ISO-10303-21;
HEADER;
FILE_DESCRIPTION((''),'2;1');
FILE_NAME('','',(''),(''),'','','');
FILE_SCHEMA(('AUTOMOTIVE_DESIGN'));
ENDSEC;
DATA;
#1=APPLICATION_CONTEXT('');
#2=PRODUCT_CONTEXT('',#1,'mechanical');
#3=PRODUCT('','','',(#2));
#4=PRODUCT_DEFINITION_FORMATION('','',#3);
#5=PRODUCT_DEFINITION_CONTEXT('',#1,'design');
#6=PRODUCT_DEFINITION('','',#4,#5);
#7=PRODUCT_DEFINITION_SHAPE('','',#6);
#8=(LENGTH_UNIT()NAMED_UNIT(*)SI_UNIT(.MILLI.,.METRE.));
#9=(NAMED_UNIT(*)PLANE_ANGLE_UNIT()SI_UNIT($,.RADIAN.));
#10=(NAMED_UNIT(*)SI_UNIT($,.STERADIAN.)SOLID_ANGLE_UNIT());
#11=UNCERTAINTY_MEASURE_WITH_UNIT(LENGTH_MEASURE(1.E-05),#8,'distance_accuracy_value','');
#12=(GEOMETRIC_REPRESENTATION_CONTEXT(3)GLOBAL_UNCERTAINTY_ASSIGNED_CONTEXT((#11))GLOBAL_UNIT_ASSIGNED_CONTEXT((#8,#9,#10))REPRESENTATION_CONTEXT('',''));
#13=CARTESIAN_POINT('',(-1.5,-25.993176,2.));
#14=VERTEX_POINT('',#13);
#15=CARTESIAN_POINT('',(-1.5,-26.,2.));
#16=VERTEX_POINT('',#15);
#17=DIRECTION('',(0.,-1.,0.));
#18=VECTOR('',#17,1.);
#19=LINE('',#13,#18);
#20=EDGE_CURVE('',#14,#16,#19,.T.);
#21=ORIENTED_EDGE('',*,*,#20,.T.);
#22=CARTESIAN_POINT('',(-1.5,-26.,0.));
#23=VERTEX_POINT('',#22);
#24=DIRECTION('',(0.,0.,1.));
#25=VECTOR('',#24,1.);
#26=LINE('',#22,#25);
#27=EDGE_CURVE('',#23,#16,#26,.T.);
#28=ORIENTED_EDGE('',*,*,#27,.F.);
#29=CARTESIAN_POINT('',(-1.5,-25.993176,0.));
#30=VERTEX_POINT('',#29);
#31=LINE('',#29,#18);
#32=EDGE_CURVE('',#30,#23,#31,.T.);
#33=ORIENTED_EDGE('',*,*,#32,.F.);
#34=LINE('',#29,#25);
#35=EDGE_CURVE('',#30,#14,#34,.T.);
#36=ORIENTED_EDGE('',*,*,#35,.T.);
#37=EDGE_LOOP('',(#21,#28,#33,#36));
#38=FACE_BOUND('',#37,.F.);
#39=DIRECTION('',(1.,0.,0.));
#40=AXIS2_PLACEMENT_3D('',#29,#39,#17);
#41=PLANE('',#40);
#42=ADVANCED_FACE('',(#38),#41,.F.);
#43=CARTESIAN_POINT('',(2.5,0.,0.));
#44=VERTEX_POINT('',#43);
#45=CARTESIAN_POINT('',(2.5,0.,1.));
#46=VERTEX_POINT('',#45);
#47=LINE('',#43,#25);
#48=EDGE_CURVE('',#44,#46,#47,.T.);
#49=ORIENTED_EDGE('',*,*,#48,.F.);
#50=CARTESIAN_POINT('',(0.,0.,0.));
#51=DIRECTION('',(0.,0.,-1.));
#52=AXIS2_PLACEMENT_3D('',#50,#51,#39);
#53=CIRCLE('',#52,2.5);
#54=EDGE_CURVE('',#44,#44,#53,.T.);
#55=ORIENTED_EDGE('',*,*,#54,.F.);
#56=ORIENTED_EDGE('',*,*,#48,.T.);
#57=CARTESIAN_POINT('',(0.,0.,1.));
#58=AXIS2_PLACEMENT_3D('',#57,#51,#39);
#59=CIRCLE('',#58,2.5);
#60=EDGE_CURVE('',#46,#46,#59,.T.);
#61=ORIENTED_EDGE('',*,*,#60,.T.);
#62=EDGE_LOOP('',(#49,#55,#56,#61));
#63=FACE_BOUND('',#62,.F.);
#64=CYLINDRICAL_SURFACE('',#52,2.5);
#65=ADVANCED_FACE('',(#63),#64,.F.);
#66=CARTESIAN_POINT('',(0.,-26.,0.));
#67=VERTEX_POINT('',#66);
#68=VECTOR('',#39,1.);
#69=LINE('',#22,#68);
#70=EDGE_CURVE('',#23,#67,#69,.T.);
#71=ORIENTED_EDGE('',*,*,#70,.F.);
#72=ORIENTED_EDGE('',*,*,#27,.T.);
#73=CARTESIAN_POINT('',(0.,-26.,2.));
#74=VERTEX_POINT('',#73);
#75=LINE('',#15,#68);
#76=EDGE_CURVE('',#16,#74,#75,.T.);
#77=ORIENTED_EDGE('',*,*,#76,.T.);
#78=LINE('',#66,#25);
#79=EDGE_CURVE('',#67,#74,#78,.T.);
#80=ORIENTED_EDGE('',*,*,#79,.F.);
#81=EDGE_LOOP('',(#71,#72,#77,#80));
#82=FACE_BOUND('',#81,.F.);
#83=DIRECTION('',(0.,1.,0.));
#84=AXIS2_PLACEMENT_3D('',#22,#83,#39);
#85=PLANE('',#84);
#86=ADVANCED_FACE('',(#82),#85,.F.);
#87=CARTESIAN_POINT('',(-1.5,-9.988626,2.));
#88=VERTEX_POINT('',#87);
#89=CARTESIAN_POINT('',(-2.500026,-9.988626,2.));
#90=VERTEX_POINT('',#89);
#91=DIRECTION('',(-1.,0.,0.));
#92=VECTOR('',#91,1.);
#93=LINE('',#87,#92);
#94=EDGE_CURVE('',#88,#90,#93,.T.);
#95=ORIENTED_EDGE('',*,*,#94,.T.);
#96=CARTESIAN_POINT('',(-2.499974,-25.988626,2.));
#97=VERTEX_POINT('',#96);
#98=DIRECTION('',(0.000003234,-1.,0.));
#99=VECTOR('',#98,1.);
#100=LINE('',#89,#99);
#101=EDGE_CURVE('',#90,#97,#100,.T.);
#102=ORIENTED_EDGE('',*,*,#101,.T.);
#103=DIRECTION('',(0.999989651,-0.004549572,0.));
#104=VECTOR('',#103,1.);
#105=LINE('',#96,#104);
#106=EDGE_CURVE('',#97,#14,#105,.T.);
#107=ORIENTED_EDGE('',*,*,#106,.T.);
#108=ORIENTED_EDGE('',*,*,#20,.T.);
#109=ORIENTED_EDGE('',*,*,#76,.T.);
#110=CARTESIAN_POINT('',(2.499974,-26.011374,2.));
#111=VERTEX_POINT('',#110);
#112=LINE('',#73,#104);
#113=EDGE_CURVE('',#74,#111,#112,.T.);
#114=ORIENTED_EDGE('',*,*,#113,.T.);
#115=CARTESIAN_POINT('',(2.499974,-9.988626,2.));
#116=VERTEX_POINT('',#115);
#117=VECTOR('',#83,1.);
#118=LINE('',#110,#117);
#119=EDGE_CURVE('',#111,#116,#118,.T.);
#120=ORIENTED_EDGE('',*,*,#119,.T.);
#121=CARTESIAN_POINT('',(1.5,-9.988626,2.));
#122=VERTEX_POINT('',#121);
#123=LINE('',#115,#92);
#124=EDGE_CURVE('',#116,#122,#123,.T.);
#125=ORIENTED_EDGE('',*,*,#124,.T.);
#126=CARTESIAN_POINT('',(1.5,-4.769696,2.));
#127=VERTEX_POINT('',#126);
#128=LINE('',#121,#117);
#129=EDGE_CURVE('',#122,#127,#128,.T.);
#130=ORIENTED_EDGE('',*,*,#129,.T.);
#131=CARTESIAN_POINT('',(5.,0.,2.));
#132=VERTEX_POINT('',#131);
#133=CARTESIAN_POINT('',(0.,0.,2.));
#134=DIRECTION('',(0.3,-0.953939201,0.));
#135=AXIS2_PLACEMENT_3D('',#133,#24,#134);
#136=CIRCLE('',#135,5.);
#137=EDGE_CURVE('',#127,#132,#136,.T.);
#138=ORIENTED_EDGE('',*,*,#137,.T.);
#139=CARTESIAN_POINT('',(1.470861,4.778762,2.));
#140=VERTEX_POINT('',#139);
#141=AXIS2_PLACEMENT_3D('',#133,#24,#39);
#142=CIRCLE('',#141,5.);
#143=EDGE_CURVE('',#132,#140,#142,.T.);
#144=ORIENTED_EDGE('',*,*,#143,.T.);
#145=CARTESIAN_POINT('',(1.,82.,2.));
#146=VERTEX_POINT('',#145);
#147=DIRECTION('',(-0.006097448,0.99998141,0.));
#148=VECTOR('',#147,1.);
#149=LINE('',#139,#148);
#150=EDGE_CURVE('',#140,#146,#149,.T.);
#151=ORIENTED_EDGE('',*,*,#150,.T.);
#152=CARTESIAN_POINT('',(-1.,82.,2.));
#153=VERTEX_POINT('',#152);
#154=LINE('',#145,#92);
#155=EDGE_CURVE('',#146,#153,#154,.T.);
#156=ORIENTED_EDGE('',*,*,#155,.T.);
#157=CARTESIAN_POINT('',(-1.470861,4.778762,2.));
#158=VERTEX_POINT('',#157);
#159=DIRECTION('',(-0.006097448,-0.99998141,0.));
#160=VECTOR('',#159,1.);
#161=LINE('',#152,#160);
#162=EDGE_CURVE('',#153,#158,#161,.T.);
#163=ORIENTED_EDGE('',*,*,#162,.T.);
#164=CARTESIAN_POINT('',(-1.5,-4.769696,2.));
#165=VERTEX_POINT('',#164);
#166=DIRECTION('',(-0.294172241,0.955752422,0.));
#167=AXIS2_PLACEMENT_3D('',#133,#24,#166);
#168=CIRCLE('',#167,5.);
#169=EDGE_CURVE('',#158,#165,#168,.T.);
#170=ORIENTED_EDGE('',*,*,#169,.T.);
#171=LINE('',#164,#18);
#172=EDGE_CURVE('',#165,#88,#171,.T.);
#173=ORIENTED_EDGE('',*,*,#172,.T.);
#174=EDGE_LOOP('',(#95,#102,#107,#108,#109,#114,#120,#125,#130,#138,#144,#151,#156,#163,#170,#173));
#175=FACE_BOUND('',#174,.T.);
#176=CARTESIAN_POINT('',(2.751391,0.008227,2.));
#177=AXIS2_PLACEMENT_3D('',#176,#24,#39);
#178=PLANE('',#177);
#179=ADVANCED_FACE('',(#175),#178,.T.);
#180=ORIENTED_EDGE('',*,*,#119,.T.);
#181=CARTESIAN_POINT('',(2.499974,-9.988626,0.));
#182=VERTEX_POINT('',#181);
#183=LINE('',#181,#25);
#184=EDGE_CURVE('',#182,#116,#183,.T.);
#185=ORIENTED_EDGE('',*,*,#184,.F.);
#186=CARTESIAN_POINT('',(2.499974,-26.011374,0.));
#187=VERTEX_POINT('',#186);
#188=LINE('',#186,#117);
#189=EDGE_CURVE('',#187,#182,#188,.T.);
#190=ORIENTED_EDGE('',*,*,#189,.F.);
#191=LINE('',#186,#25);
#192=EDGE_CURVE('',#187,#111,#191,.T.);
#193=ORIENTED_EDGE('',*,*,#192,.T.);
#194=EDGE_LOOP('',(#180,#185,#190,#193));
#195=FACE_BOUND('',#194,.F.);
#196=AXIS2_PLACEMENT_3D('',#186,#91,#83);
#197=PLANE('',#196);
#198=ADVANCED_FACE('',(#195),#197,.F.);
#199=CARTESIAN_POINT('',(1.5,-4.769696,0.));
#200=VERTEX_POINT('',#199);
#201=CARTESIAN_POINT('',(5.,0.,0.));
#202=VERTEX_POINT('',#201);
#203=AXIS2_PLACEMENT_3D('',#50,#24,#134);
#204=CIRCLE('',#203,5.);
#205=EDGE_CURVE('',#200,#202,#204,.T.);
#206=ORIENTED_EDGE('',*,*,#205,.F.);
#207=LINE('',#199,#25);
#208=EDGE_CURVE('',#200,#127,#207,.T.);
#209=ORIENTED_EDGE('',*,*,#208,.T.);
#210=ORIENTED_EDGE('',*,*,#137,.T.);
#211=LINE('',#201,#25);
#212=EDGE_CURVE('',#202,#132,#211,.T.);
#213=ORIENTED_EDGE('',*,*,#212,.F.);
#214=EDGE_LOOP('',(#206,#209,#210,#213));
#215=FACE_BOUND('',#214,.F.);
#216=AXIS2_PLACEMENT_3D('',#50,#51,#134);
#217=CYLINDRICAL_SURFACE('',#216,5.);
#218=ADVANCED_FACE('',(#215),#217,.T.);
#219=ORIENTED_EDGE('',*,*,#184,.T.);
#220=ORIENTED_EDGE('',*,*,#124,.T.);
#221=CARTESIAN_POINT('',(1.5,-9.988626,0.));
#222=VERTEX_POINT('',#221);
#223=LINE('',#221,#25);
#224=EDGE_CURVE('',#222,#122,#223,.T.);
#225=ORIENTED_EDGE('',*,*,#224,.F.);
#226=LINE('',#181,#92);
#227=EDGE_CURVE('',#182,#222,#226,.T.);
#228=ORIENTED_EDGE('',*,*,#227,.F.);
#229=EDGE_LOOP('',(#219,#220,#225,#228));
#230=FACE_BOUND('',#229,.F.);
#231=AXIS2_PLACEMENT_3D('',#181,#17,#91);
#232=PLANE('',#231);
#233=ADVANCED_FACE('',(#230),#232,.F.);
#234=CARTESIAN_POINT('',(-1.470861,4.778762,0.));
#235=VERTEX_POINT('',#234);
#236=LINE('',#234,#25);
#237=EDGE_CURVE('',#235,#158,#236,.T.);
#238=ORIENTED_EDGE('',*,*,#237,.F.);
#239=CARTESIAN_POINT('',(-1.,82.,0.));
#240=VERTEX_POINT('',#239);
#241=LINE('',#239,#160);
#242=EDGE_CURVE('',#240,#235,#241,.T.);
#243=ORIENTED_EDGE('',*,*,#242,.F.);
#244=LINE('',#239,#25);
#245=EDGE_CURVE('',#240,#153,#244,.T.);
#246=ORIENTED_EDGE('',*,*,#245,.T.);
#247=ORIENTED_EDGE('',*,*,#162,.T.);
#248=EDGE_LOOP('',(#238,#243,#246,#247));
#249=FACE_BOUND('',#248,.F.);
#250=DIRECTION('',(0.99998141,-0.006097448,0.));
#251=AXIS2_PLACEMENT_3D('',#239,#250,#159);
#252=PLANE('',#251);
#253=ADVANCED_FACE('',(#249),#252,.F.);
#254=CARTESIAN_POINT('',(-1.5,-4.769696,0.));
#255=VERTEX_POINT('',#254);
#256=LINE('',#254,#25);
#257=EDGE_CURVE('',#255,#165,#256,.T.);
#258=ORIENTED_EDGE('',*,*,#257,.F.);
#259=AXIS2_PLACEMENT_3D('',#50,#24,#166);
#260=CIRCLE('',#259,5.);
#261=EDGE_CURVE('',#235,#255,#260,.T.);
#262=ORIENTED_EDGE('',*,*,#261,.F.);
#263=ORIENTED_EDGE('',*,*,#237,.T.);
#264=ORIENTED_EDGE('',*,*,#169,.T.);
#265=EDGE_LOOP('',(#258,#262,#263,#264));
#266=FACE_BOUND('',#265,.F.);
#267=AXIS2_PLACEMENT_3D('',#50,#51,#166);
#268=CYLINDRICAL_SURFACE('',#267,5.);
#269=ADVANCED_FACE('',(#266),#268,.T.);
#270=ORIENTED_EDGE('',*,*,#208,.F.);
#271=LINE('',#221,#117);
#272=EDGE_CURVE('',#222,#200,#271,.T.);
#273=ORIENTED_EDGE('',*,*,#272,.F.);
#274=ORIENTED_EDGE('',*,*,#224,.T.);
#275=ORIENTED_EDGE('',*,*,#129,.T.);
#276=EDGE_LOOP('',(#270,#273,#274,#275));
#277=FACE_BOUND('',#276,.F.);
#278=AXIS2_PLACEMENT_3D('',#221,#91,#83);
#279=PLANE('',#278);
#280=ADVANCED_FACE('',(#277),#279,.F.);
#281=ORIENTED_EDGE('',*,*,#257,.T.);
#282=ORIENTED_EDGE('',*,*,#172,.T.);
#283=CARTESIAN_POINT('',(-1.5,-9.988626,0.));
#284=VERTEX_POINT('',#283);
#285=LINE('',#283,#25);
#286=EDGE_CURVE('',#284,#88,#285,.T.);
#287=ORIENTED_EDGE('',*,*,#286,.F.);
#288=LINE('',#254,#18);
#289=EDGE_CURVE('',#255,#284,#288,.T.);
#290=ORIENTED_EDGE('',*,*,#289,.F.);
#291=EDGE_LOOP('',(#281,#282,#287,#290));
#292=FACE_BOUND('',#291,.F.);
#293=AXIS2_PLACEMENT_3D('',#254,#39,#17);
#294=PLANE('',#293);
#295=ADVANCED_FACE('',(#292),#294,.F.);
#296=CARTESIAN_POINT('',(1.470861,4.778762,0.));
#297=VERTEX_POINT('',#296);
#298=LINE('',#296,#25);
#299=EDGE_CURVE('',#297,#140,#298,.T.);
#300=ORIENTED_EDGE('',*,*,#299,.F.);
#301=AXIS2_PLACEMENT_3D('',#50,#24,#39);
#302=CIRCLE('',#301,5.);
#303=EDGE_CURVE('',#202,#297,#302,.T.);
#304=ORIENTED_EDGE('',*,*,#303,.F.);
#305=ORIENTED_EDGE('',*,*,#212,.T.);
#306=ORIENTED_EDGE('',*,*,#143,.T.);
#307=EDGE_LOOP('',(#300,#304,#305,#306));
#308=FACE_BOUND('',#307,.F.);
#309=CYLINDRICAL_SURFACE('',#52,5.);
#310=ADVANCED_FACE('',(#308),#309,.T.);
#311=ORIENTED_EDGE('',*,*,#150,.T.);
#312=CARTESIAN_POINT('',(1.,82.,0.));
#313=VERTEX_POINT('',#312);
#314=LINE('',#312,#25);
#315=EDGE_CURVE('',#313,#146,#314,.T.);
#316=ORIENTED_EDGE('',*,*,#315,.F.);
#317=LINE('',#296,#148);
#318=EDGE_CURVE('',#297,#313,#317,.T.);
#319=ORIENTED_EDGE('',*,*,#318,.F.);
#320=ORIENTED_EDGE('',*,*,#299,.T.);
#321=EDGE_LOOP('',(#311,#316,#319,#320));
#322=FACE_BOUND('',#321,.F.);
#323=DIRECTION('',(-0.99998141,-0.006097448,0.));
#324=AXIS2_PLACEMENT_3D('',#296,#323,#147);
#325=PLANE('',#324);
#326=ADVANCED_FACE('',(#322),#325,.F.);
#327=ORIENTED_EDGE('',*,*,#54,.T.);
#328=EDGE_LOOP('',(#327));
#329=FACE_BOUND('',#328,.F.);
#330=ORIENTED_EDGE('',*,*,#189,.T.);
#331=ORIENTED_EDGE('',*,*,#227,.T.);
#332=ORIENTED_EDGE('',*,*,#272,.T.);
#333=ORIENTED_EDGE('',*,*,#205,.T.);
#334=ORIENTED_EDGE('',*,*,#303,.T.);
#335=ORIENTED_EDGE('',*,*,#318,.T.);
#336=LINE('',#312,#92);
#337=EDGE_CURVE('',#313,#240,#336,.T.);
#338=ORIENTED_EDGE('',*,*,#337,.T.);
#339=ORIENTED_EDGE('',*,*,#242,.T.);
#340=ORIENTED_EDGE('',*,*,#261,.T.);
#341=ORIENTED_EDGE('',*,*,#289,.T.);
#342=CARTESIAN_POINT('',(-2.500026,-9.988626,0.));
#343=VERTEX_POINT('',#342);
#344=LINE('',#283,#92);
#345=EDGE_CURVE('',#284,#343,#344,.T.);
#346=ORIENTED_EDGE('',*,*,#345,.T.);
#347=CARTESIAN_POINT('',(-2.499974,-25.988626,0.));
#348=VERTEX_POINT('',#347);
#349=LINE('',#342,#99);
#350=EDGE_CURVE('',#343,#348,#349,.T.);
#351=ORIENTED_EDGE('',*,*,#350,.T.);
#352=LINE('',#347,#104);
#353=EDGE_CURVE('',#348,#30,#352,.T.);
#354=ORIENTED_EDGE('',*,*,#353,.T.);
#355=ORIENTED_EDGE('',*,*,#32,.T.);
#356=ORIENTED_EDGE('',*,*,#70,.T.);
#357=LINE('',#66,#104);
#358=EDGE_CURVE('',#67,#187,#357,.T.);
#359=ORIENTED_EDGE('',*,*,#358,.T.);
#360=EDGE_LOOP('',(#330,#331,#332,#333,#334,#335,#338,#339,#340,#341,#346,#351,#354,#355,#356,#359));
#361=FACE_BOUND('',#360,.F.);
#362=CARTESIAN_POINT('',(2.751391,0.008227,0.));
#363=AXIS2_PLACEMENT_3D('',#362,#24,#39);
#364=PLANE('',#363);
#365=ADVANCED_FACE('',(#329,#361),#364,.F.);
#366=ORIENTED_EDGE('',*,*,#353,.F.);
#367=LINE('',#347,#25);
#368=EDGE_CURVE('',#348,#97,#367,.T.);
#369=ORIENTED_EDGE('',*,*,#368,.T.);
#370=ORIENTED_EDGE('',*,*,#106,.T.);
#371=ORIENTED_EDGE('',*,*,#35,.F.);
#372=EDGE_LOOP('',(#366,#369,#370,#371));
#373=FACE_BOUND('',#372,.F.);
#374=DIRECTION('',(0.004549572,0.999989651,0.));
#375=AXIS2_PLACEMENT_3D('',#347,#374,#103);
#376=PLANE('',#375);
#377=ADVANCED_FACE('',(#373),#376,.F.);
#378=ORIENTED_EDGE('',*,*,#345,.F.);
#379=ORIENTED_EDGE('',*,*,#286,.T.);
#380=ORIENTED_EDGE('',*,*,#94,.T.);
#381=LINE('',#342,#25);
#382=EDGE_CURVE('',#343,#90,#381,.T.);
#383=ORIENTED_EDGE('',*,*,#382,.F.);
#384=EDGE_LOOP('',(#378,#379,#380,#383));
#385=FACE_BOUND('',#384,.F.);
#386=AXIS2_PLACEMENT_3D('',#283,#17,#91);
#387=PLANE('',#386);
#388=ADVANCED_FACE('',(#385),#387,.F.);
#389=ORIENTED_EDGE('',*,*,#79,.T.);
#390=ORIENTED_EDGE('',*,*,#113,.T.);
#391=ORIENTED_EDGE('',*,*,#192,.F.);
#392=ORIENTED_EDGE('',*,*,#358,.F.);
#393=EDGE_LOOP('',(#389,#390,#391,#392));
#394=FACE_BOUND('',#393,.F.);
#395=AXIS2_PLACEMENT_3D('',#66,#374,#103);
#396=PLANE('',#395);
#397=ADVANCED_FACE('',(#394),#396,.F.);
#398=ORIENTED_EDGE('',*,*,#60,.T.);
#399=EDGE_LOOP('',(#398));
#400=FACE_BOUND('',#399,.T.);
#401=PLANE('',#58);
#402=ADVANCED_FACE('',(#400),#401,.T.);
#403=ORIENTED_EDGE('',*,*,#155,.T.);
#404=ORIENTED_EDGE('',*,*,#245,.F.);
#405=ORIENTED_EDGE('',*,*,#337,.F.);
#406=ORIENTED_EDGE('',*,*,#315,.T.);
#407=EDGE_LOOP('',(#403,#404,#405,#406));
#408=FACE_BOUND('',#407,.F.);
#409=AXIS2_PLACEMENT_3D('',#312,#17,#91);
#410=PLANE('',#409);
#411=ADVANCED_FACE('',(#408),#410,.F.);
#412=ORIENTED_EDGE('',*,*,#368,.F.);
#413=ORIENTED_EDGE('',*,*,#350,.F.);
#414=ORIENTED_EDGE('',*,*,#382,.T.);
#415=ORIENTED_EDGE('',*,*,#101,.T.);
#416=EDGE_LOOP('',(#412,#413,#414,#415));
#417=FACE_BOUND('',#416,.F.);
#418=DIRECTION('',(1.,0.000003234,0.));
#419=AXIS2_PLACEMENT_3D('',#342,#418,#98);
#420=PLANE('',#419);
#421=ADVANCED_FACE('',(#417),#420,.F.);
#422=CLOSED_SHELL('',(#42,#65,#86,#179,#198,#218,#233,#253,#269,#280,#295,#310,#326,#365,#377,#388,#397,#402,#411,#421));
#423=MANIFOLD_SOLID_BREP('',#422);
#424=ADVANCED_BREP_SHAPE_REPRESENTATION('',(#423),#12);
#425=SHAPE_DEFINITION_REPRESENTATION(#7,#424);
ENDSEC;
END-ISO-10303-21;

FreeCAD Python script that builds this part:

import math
import FreeCAD as App
import Part
import Sketcher

doc = App.newDocument("Part")
params = doc.addObject("Spreadsheet::Sheet", "Params")
for row, (alias, value) in enumerate([
    ("sketch1_radius", "5 mm"),
    ("sketch1_radius2", "5 mm"),
    ("sketch1_width", "2 mm"),
    ("sketch1_length", "16 mm"),
    ("sketch1_width2", "1.5 mm"),
    ("pad1_length", "2 mm"),
    ("sketch2_diameter", "5 mm"),
    ("pocket1_length", "1 mm"),
], start=1):
    params.set(f"A{row}", alias)
    params.set(f"B{row}", "=" + value)
    params.setAlias(f"B{row}", alias)

body = doc.addObject("PartDesign::Body", "Body")

# Sketch on XY plane
sketch1 = doc.addObject("Sketcher::SketchObject", "Sketch")
body.addObject(sketch1)
sketch1.AttachmentSupport = (doc.XY_Plane, [""])
sketch1.MapMode = "FlatFace"
sketch1.addGeometry(Part.ArcOfCircle(Part.Circle(App.Vector(0, 0, 0), App.Vector(0, 0, 1), 5), math.radians(-72.542397), math.radians(0)), False)
sketch1.addGeometry(Part.ArcOfCircle(Part.Circle(App.Vector(0, 0, 0), App.Vector(0, 0, 1), 5), math.radians(0), math.radians(72.892092)), False)
sketch1.addGeometry(Part.LineSegment(App.Vector(1.470861, 4.778762, 0), App.Vector(1, 82, 0)), False)
sketch1.addGeometry(Part.LineSegment(App.Vector(1, 82, 0), App.Vector(-1, 82, 0)), False)
sketch1.addGeometry(Part.LineSegment(App.Vector(-1, 82, 0), App.Vector(-1.470861, 4.778762, 0)), False)
sketch1.addGeometry(Part.ArcOfCircle(Part.Circle(App.Vector(0, 0, 0), App.Vector(0, 0, 1), 5), math.radians(107.107908), math.radians(252.542397)), False)
sketch1.addGeometry(Part.LineSegment(App.Vector(-1.5, -4.769696, 0), App.Vector(-1.5, -9.988626, 0)), False)
sketch1.addGeometry(Part.LineSegment(App.Vector(-1.5, -9.988626, 0), App.Vector(-2.500026, -9.988626, 0)), False)
sketch1.addGeometry(Part.LineSegment(App.Vector(-2.500026, -9.988626, 0), App.Vector(-2.499974, -25.988626, 0)), False)
sketch1.addGeometry(Part.LineSegment(App.Vector(-2.499974, -25.988626, 0), App.Vector(-1.5, -25.993176, 0)), False)
sketch1.addGeometry(Part.LineSegment(App.Vector(-1.5, -25.993176, 0), App.Vector(-1.5, -26, 0)), False)
sketch1.addGeometry(Part.LineSegment(App.Vector(-1.5, -26, 0), App.Vector(0, -26, 0)), False)
sketch1.addGeometry(Part.LineSegment(App.Vector(0, -26, 0), App.Vector(2.499974, -26.011374, 0)), False)
sketch1.addGeometry(Part.LineSegment(App.Vector(2.499974, -26.011374, 0), App.Vector(2.499974, -9.988626, 0)), False)
sketch1.addGeometry(Part.LineSegment(App.Vector(2.499974, -9.988626, 0), App.Vector(1.5, -9.988626, 0)), False)
sketch1.addGeometry(Part.LineSegment(App.Vector(1.5, -9.988626, 0), App.Vector(1.5, -4.769696, 0)), False)
sketch1.addConstraint(Sketcher.Constraint("Coincident", 0, 2, 1, 1))
sketch1.addConstraint(Sketcher.Constraint("Coincident", 1, 2, 2, 1))
sketch1.addConstraint(Sketcher.Constraint("Coincident", 2, 2, 3, 1))
sketch1.addConstraint(Sketcher.Constraint("Coincident", 3, 2, 4, 1))
sketch1.addConstraint(Sketcher.Constraint("Coincident", 4, 2, 5, 1))
sketch1.addConstraint(Sketcher.Constraint("Coincident", 5, 2, 6, 1))
sketch1.addConstraint(Sketcher.Constraint("Coincident", 6, 2, 7, 1))
sketch1.addConstraint(Sketcher.Constraint("Coincident", 7, 2, 8, 1))
sketch1.addConstraint(Sketcher.Constraint("Coincident", 8, 2, 9, 1))
sketch1.addConstraint(Sketcher.Constraint("Coincident", 9, 2, 10, 1))
sketch1.addConstraint(Sketcher.Constraint("Coincident", 10, 2, 11, 1))
sketch1.addConstraint(Sketcher.Constraint("Coincident", 11, 2, 12, 1))
sketch1.addConstraint(Sketcher.Constraint("Coincident", 12, 2, 13, 1))
sketch1.addConstraint(Sketcher.Constraint("Coincident", 13, 2, 14, 1))
sketch1.addConstraint(Sketcher.Constraint("Coincident", 14, 2, 15, 1))
sketch1.addConstraint(Sketcher.Constraint("Coincident", 15, 2, 0, 1))
sketch1.addConstraint(Sketcher.Constraint("Horizontal", 3))
sketch1.addConstraint(Sketcher.Constraint("Vertical", 6))
sketch1.addConstraint(Sketcher.Constraint("Horizontal", 7))
sketch1.addConstraint(Sketcher.Constraint("Vertical", 10))
sketch1.addConstraint(Sketcher.Constraint("Horizontal", 11))
sketch1.addConstraint(Sketcher.Constraint("Vertical", 13))
sketch1.addConstraint(Sketcher.Constraint("Horizontal", 14))
sketch1.addConstraint(Sketcher.Constraint("Vertical", 15))
sketch1.addConstraint(Sketcher.Constraint("Coincident", 0, 3, -1, 1))
sketch1.addConstraint(Sketcher.Constraint("Coincident", 1, 3, -1, 1))
sketch1.addConstraint(Sketcher.Constraint("Coincident", 5, 3, -1, 1))
sketch1.addConstraint(Sketcher.Constraint("PointOnObject", 0, 2, -1))
sketch1.addConstraint(Sketcher.Constraint("PointOnObject", 11, 2, -2))
sketch1.addConstraint(Sketcher.Constraint("Radius", 0, 5.0))
sketch1.addConstraint(Sketcher.Constraint("Radius", 5, 5.0))
sketch1.addConstraint(Sketcher.Constraint("DistanceX", 3, 2, 3, 1, 2.0))
sketch1.addConstraint(Sketcher.Constraint("Distance", 8, 16.0))
sketch1.addConstraint(Sketcher.Constraint("DistanceX", 11, 1, 11, 2, 1.5))
sketch1.addConstraint(Sketcher.Constraint("DistanceX", -1, 1, 2, 2, 1.0))
sketch1.addConstraint(Sketcher.Constraint("DistanceY", -1, 1, 2, 2, 82.0))
sketch1.addConstraint(Sketcher.Constraint("DistanceY", 10, 2, -1, 1, 26.0))
sketch1.addConstraint(Sketcher.Constraint("DistanceX", 7, 2, 13, 2, 5.0))
sketch1.addConstraint(Sketcher.Constraint("DistanceX", 6, 2, 14, 2, 3.0))
sketch1.addConstraint(Sketcher.Constraint("Distance", 12, 2.5))
sketch1.addConstraint(Sketcher.Constraint("DistanceX", 5, 2, -1, 1, 1.5))
sketch1.addConstraint(Sketcher.Constraint("DistanceY", 6, 2, 6, 1, 5.21893))
sketch1.addConstraint(Sketcher.Constraint("DistanceY", 15, 1, 15, 2, 5.21893))
sketch1.addConstraint(Sketcher.Constraint("DistanceY", 12, 2, 9, 2, 0.018198))
sketch1.addConstraint(Sketcher.Constraint("DistanceY", 10, 2, 10, 1, 0.006824))
sketch1.addConstraint(Sketcher.Constraint("DistanceX", -1, 1, 1, 2, 1.470861))
sketch1.addConstraint(Sketcher.Constraint("DistanceX", 4, 2, -1, 1, 1.470861))
sketch1.addConstraint(Sketcher.Constraint("DistanceX", 8, 2, 12, 2, 4.999948))
sketch1.setExpression("Constraints[29]", "Params.sketch1_radius")
sketch1.setExpression("Constraints[30]", "Params.sketch1_radius2")
sketch1.setExpression("Constraints[31]", "Params.sketch1_width")
sketch1.setExpression("Constraints[32]", "Params.sketch1_length")
sketch1.setExpression("Constraints[33]", "Params.sketch1_width2")
pad1 = doc.addObject("PartDesign::Pad", "Pad")
body.addObject(pad1)
pad1.Profile = sketch1
pad1.setExpression("Length", "Params.pad1_length")

# Sketch on XY plane
sketch2 = doc.addObject("Sketcher::SketchObject", "Sketch001")
body.addObject(sketch2)
sketch2.AttachmentSupport = (doc.XY_Plane, [""])
sketch2.MapMode = "FlatFace"
sketch2.addGeometry(Part.Circle(App.Vector(0, 0, 0), App.Vector(0, 0, 1), 2.5), False)
sketch2.addConstraint(Sketcher.Constraint("Coincident", 0, 3, -1, 1))
sketch2.addConstraint(Sketcher.Constraint("Diameter", 0, 5.0))
sketch2.setExpression("Constraints[1]", "Params.sketch2_diameter")
pocket1 = doc.addObject("PartDesign::Pocket", "Pocket")
body.addObject(pocket1)
pocket1.Profile = sketch2
pocket1.setExpression("Length", "Params.pocket1_length")
pocket1.Reversed = True

doc.recompute()
